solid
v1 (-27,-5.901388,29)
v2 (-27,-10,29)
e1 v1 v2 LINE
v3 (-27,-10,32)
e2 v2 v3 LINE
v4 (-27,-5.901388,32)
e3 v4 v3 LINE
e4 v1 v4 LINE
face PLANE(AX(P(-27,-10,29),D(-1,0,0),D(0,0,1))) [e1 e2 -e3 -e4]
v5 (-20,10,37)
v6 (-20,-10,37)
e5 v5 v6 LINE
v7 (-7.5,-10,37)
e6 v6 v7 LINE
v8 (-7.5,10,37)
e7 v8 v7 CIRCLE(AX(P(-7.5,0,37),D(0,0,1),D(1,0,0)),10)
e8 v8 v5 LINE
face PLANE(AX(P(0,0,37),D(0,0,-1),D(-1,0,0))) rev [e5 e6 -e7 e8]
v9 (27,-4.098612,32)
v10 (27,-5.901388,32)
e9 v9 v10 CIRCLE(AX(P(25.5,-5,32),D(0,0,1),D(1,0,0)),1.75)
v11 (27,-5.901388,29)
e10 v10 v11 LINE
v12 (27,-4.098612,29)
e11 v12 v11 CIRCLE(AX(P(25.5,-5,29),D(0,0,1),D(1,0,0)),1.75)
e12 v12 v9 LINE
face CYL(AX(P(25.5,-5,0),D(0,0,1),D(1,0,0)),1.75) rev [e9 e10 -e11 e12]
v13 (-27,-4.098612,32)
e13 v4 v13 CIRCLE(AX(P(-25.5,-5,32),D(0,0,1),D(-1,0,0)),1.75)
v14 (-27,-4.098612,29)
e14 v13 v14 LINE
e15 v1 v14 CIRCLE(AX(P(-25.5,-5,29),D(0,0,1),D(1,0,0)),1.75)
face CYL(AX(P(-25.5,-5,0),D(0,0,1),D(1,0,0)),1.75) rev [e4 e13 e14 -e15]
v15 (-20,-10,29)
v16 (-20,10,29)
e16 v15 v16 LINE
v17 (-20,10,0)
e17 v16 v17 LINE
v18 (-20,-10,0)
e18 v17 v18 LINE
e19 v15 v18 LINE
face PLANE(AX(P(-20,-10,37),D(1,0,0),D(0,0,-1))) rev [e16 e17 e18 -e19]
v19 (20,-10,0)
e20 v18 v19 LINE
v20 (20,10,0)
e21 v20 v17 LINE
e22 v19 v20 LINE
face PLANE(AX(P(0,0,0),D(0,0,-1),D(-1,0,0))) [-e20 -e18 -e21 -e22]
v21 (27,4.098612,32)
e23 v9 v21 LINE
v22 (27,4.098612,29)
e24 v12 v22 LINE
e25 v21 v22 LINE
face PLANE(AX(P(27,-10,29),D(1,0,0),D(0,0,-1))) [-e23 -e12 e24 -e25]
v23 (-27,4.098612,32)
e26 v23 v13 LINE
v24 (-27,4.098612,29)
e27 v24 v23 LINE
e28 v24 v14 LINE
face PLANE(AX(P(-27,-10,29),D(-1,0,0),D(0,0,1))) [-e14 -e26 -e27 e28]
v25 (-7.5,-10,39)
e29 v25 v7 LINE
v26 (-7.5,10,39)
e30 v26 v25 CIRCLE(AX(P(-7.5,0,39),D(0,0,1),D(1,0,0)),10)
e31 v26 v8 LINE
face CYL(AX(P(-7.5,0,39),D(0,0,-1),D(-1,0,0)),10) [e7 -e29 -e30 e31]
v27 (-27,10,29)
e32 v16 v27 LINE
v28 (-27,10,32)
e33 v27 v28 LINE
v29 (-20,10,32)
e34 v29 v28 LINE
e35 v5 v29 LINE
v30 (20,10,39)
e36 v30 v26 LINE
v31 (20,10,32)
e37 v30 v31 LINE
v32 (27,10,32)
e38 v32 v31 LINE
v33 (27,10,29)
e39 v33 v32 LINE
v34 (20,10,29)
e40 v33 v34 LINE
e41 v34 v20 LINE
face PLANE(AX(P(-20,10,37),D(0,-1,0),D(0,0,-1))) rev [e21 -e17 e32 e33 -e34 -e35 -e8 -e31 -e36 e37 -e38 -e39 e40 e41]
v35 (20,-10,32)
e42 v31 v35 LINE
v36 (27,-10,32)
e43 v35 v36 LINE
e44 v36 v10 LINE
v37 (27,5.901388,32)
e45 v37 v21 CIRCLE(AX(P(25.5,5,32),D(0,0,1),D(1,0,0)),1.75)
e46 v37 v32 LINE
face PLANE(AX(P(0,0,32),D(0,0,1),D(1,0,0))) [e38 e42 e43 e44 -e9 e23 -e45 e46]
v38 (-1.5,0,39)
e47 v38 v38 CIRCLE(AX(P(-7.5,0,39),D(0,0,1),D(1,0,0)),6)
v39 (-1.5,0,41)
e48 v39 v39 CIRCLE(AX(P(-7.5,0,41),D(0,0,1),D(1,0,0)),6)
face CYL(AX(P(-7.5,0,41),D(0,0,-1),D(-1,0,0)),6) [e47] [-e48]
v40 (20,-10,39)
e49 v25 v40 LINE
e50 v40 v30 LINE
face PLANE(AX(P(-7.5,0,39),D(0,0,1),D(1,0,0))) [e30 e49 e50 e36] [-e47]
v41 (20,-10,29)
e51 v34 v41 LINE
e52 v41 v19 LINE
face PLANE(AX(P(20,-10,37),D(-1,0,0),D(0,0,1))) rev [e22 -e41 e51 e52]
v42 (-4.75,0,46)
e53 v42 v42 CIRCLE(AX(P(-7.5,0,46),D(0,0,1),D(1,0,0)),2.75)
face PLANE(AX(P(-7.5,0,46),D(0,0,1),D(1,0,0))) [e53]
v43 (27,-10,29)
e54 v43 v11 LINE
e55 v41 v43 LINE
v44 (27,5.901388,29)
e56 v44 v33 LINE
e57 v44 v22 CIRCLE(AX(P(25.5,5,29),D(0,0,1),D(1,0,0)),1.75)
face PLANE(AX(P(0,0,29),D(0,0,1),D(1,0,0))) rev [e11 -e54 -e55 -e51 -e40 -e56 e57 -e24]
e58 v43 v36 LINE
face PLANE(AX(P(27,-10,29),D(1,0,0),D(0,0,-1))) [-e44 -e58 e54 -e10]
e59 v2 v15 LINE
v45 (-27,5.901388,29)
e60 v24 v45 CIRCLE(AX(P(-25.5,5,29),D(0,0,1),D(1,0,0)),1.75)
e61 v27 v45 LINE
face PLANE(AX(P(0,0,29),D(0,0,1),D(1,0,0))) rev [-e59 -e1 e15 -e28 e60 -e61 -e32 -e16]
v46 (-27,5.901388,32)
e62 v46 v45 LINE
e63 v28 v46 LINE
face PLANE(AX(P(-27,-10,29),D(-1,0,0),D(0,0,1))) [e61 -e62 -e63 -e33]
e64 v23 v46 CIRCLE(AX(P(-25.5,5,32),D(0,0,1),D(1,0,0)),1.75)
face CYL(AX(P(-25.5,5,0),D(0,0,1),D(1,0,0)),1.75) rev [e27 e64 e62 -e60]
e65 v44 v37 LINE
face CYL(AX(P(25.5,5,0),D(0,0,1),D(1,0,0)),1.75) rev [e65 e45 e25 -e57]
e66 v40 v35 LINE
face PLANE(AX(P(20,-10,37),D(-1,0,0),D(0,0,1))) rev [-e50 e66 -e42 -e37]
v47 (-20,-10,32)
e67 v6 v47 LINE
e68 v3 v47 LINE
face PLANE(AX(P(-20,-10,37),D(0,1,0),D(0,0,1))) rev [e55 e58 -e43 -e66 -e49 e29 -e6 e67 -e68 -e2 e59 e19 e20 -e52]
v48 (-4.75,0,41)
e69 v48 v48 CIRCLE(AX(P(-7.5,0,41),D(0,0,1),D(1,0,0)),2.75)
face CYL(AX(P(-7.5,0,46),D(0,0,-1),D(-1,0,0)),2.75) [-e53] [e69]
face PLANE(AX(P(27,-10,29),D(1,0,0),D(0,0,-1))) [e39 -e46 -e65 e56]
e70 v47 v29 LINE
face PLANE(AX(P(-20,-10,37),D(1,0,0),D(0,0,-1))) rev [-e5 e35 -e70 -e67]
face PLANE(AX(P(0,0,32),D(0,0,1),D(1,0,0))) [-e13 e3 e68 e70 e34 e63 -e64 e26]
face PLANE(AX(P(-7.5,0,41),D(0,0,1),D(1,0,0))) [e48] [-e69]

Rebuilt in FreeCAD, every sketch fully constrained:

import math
import FreeCAD as App
import Part
import Sketcher
from FreeCAD import Vector

doc = App.newDocument("Part")
body = doc.addObject("PartDesign::Body", "Body")

# Sketch on XY plane
sketch1 = body.newObject("Sketcher::SketchObject", "Sketch")
sketch1.AttachmentSupport = (doc.getObject("XY_Plane"), [""])
sketch1.MapMode = "FlatFace"
sketch1.addGeometry(Part.LineSegment(Vector(-20, 10, 0), Vector(-20, -10, 0)), False)
sketch1.addGeometry(Part.LineSegment(Vector(-20, -10, 0), Vector(20, -10, 0)), False)
sketch1.addGeometry(Part.LineSegment(Vector(20, -10, 0), Vector(20, 10, 0)), False)
sketch1.addGeometry(Part.LineSegment(Vector(20, 10, 0), Vector(-20, 10, 0)), False)
sketch1.addConstraint(Sketcher.Constraint("Coincident", 0, 2, 1, 1))
sketch1.addConstraint(Sketcher.Constraint("Coincident", 1, 2, 2, 1))
sketch1.addConstraint(Sketcher.Constraint("Coincident", 2, 2, 3, 1))
sketch1.addConstraint(Sketcher.Constraint("Coincident", 3, 2, 0, 1))
sketch1.addConstraint(Sketcher.Constraint("Vertical", 0))
sketch1.addConstraint(Sketcher.Constraint("Horizontal", 1))
sketch1.addConstraint(Sketcher.Constraint("Vertical", 2))
sketch1.addConstraint(Sketcher.Constraint("Horizontal", 3))
sketch1.addConstraint(Sketcher.Constraint("Symmetric", 0, 2, 2, 2, -1, 1))
sketch1.addConstraint(Sketcher.Constraint("DistanceX", 1, 1, 1, 2, 40.0))
sketch1.addConstraint(Sketcher.Constraint("DistanceY", 0, 2, 0, 1, 20.0))
pad1 = body.newObject("PartDesign::Pad", "Pad")
pad1.Profile = sketch1
pad1.Length = 37

# Sketch on XY plane
sketch2 = body.newObject("Sketcher::SketchObject", "Sketch001")
sketch2.AttachmentSupport = (doc.getObject("XY_Plane"), [""])
sketch2.MapMode = "FlatFace"
sketch2.AttachmentOffset = App.Placement(Vector(0, 0, 37), App.Rotation())
sketch2.addGeometry(Part.LineSegment(Vector(20, 10, 0), Vector(-7.5, 10, 0)), False)
sketch2.addGeometry(Part.ArcOfCircle(Part.Circle(Vector(-7.5, 0, 0), Vector(0, 0, 1), 10), math.radians(90), math.radians(270)), False)
sketch2.addGeometry(Part.LineSegment(Vector(-7.5, -10, 0), Vector(20, -10, 0)), False)
sketch2.addGeometry(Part.LineSegment(Vector(20, -10, 0), Vector(20, 10, 0)), False)
sketch2.addConstraint(Sketcher.Constraint("Tangent", 0, 2, 1, 1))
sketch2.addConstraint(Sketcher.Constraint("Tangent", 1, 2, 2, 1))
sketch2.addConstraint(Sketcher.Constraint("Coincident", 2, 2, 3, 1))
sketch2.addConstraint(Sketcher.Constraint("Coincident", 3, 2, 0, 1))
sketch2.addConstraint(Sketcher.Constraint("Horizontal", 0))
sketch2.addConstraint(Sketcher.Constraint("Horizontal", 2))
sketch2.addConstraint(Sketcher.Constraint("Vertical", 3))
sketch2.addConstraint(Sketcher.Constraint("PointOnObject", 1, 3, -1))
sketch2.addConstraint(Sketcher.Constraint("Radius", 1, 10.0))
sketch2.addConstraint(Sketcher.Constraint("DistanceX", 0, 2, 0, 1, 27.5))
sketch2.addConstraint(Sketcher.Constraint("DistanceX", -1, 1, 2, 2, 20.0))
pad2 = body.newObject("PartDesign::Pad", "Pad001")
pad2.Profile = sketch2
pad2.Length = 2

# Sketch on XY plane
sketch3 = body.newObject("Sketcher::SketchObject", "Sketch002")
sketch3.AttachmentSupport = (doc.getObject("XY_Plane"), [""])
sketch3.MapMode = "FlatFace"
sketch3.AttachmentOffset = App.Placement(Vector(0, 0, 39), App.Rotation())
sketch3.addGeometry(Part.Circle(Vector(-7.5, 0, 0), Vector(0, 0, 1), 6), False)
sketch3.addConstraint(Sketcher.Constraint("PointOnObject", 0, 3, -1))
sketch3.addConstraint(Sketcher.Constraint("Diameter", 0, 12.0))
sketch3.addConstraint(Sketcher.Constraint("DistanceX", 0, 3, -1, 1, 7.5))
pad3 = body.newObject("PartDesign::Pad", "Pad002")
pad3.Profile = sketch3
pad3.Length = 2

# Sketch on XY plane
sketch4 = body.newObject("Sketcher::SketchObject", "Sketch003")
sketch4.AttachmentSupport = (doc.getObject("XY_Plane"), [""])
sketch4.MapMode = "FlatFace"
sketch4.AttachmentOffset = App.Placement(Vector(0, 0, 41), App.Rotation())
sketch4.addGeometry(Part.Circle(Vector(-7.5, 0, 0), Vector(0, 0, 1), 2.75), False)
sketch4.addConstraint(Sketcher.Constraint("PointOnObject", 0, 3, -1))
sketch4.addConstraint(Sketcher.Constraint("Diameter", 0, 5.5))
sketch4.addConstraint(Sketcher.Constraint("DistanceX", 0, 3, -1, 1, 7.5))
pad4 = body.newObject("PartDesign::Pad", "Pad003")
pad4.Profile = sketch4
pad4.Length = 5

# Sketch on XY plane
sketch5 = body.newObject("Sketcher::SketchObject", "Sketch004")
sketch5.AttachmentSupport = (doc.getObject("XY_Plane"), [""])
sketch5.MapMode = "FlatFace"
sketch5.AttachmentOffset = App.Placement(Vector(0, 0, 32), App.Rotation())
sketch5.addGeometry(Part.LineSegment(Vector(-27, 10, 0), Vector(-27, -10, 0)), False)
sketch5.addGeometry(Part.LineSegment(Vector(-27, -10, 0), Vector(-20, -10, 0)), False)
sketch5.addGeometry(Part.LineSegment(Vector(-20, -10, 0), Vector(-20, 10, 0)), False)
sketch5.addGeometry(Part.LineSegment(Vector(-20, 10, 0), Vector(-27, 10, 0)), False)
sketch5.addGeometry(Part.LineSegment(Vector(20, 10, 0), Vector(20, -10, 0)), False)
sketch5.addGeometry(Part.LineSegment(Vector(20, -10, 0), Vector(27, -10, 0)), False)
sketch5.addGeometry(Part.LineSegment(Vector(27, -10, 0), Vector(27, 10, 0)), False)
sketch5.addGeometry(Part.LineSegment(Vector(27, 10, 0), Vector(20, 10, 0)), False)
sketch5.addConstraint(Sketcher.Constraint("Coincident", 0, 2, 1, 1))
sketch5.addConstraint(Sketcher.Constraint("Coincident", 1, 2, 2, 1))
sketch5.addConstraint(Sketcher.Constraint("Coincident", 2, 2, 3, 1))
sketch5.addConstraint(Sketcher.Constraint("Coincident", 3, 2, 0, 1))
sketch5.addConstraint(Sketcher.Constraint("Coincident", 4, 2, 5, 1))
sketch5.addConstraint(Sketcher.Constraint("Coincident", 5, 2, 6, 1))
sketch5.addConstraint(Sketcher.Constraint("Coincident", 6, 2, 7, 1))
sketch5.addConstraint(Sketcher.Constraint("Coincident", 7, 2, 4, 1))
sketch5.addConstraint(Sketcher.Constraint("Vertical", 0))
sketch5.addConstraint(Sketcher.Constraint("Horizontal", 1))
sketch5.addConstraint(Sketcher.Constraint("Vertical", 2))
sketch5.addConstraint(Sketcher.Constraint("Horizontal", 3))
sketch5.addConstraint(Sketcher.Constraint("Vertical", 4))
sketch5.addConstraint(Sketcher.Constraint("Horizontal", 5))
sketch5.addConstraint(Sketcher.Constraint("Vertical", 6))
sketch5.addConstraint(Sketcher.Constraint("Horizontal", 7))
sketch5.addConstraint(Sketcher.Constraint("Symmetric", 2, 2, 4, 2, -1, 1))
sketch5.addConstraint(Sketcher.Constraint("Symmetric", 0, 2, 6, 2, -1, 1))
sketch5.addConstraint(Sketcher.Constraint("Horizontal", 1, 2, 4, 2))
sketch5.addConstraint(Sketcher.Constraint("DistanceX", 1, 1, 1, 2, 7.0))
sketch5.addConstraint(Sketcher.Constraint("DistanceY", 0, 2, 0, 1, 20.0))
sketch5.addConstraint(Sketcher.Constraint("DistanceX", 0, 2, -1, 1, 27.0))
pad5 = body.newObject("PartDesign::Pad", "Pad004")
pad5.Profile = sketch5
pad5.Length = 3
pad5.Reversed = True

# Sketch on XY plane
sketch6 = body.newObject("Sketcher::SketchObject", "Sketch005")
sketch6.AttachmentSupport = (doc.getObject("XY_Plane"), [""])
sketch6.MapMode = "FlatFace"
sketch6.AttachmentOffset = App.Placement(Vector(0, 0, 32), App.Rotation())
sketch6.addGeometry(Part.Circle(Vector(-25.5, 5, 0), Vector(0, 0, 1), 1.75), False)
sketch6.addGeometry(Part.Circle(Vector(-25.5, -5, 0), Vector(0, 0, 1), 1.75), False)
sketch6.addGeometry(Part.Circle(Vector(25.5, -5, 0), Vector(0, 0, 1), 1.75), False)
sketch6.addGeometry(Part.Circle(Vector(25.5, 5, 0), Vector(0, 0, 1), 1.75), False)
sketch6.addConstraint(Sketcher.Constraint("Equal", 0, 1))
sketch6.addConstraint(Sketcher.Constraint("Equal", 1, 2))
sketch6.addConstraint(Sketcher.Constraint("Equal", 2, 3))
sketch6.addConstraint(Sketcher.Constraint("Symmetric", 0, 3, 2, 3, -1, 1))
sketch6.addConstraint(Sketcher.Constraint("Symmetric", 1, 3, 3, 3, -1, 1))
sketch6.addConstraint(Sketcher.Constraint("Symmetric", 1, 3, 2, 3, -2))
sketch6.addConstraint(Sketcher.Constraint("Diameter", 0, 3.5))
sketch6.addConstraint(Sketcher.Constraint("DistanceY", -1, 1, 0, 3, 5.0))
sketch6.addConstraint(Sketcher.Constraint("DistanceX", 1, 3, 2, 3, 51.0))
pocket1 = body.newObject("PartDesign::Pocket", "Pocket")
pocket1.Profile = sketch6
pocket1.Type = "ThroughAll"

doc.recompute()
